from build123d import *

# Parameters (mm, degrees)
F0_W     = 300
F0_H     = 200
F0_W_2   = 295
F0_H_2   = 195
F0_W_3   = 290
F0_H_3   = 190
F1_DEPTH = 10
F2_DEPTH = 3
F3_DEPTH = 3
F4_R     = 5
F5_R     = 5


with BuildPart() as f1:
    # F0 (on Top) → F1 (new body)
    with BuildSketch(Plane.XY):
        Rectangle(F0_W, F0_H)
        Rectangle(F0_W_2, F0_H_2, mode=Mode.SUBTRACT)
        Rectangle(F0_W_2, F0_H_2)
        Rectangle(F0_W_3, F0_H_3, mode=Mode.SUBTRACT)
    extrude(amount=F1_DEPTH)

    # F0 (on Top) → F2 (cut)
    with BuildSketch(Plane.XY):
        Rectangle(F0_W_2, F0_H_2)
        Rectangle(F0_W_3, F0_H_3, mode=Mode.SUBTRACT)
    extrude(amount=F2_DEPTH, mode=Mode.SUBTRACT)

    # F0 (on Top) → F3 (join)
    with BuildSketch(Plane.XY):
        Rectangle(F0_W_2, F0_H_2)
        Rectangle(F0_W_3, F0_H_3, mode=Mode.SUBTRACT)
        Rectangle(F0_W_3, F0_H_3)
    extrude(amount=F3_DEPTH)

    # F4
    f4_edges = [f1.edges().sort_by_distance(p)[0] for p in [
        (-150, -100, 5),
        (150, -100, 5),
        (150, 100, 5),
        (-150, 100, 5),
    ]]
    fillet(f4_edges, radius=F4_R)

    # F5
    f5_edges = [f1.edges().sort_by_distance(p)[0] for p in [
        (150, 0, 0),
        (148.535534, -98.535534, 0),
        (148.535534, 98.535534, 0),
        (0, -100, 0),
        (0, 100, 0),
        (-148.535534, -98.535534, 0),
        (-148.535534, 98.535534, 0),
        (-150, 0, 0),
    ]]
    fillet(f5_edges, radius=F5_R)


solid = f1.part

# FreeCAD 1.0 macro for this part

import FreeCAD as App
import Part
import Sketcher
Q = App.Units.Quantity


def edges_at(feature, points):
    """Names of the edges that pass closest to the given points."""
    edges = feature.Shape.Edges
    near = lambda p: min(range(len(edges)), key=lambda i: edges[i].distToShape(Part.Vertex(*p))[0])
    return sorted({f"Edge{near(p) + 1}" for p in points})

doc = App.newDocument("Part")
body = doc.addObject("PartDesign::Body", "Body")

# Sketch on XY plane
sketch1 = body.newObject("Sketcher::SketchObject", "Sketch")
sketch1.AttachmentSupport = (doc.getObject("XY_Plane"), [""])
sketch1.MapMode = "FlatFace"
sketch1.addGeometry([
    Part.LineSegment(App.Vector(-150, 100, 0), App.Vector(-150, -100, 0)),  # 0
    Part.LineSegment(App.Vector(-150, -100, 0), App.Vector(150, -100, 0)),  # 1
    Part.LineSegment(App.Vector(150, -100, 0), App.Vector(150, 100, 0)),  # 2
    Part.LineSegment(App.Vector(150, 100, 0), App.Vector(-150, 100, 0)),  # 3
    Part.LineSegment(App.Vector(145, -95, 0), App.Vector(-145, -95, 0)),  # 4
    Part.LineSegment(App.Vector(-145, -95, 0), App.Vector(-145, 95, 0)),  # 5
    Part.LineSegment(App.Vector(-145, 95, 0), App.Vector(145, 95, 0)),  # 6
    Part.LineSegment(App.Vector(145, 95, 0), App.Vector(145, -95, 0)),  # 7
], False)
sketch1.addConstraint([
    Sketcher.Constraint("Coincident", 0, 2, 1, 1),
    Sketcher.Constraint("Coincident", 1, 2, 2, 1),
    Sketcher.Constraint("Coincident", 2, 2, 3, 1),
    Sketcher.Constraint("Coincident", 3, 2, 0, 1),
    Sketcher.Constraint("Coincident", 4, 2, 5, 1),
    Sketcher.Constraint("Coincident", 5, 2, 6, 1),
    Sketcher.Constraint("Coincident", 6, 2, 7, 1),
    Sketcher.Constraint("Coincident", 7, 2, 4, 1),
    Sketcher.Constraint("Vertical", 0),
    Sketcher.Constraint("Horizontal", 1),
    Sketcher.Constraint("Vertical", 2),
    Sketcher.Constraint("Horizontal", 3),
    Sketcher.Constraint("Horizontal", 4),
    Sketcher.Constraint("Vertical", 5),
    Sketcher.Constraint("Horizontal", 6),
    Sketcher.Constraint("Vertical", 7),
    Sketcher.Constraint("Symmetric", 0, 2, 2, 2, -1, 1),
    Sketcher.Constraint("Symmetric", 4, 2, 6, 2, -1, 1),
    Sketcher.Constraint("DistanceX", 1, 1, 1, 2, Q("300 mm")),
    Sketcher.Constraint("DistanceX", 4, 2, 4, 1, Q("290 mm")),
    Sketcher.Constraint("DistanceY", 0, 2, 0, 1, Q("200 mm")),
    Sketcher.Constraint("DistanceY", 5, 1, 5, 2, Q("190 mm")),
])
pad1 = body.newObject("PartDesign::Pad", "Pad")
pad1.Profile = sketch1
pad1.Length = 10

# Sketch on XY plane
sketch2 = body.newObject("Sketcher::SketchObject", "Sketch001")
sketch2.AttachmentSupport = (doc.getObject("XY_Plane"), [""])
sketch2.MapMode = "FlatFace"
sketch2.addGeometry([
    Part.LineSegment(App.Vector(-147.5, 97.5, 0), App.Vector(-147.5, -97.5, 0)),  # 0
    Part.LineSegment(App.Vector(-147.5, -97.5, 0), App.Vector(147.5, -97.5, 0)),  # 1
    Part.LineSegment(App.Vector(147.5, -97.5, 0), App.Vector(147.5, 97.5, 0)),  # 2
    Part.LineSegment(App.Vector(147.5, 97.5, 0), App.Vector(-147.5, 97.5, 0)),  # 3
    Part.LineSegment(App.Vector(145, -95, 0), App.Vector(-145, -95, 0)),  # 4
    Part.LineSegment(App.Vector(-145, -95, 0), App.Vector(-145, 95, 0)),  # 5
    Part.LineSegment(App.Vector(-145, 95, 0), App.Vector(145, 95, 0)),  # 6
    Part.LineSegment(App.Vector(145, 95, 0), App.Vector(145, -95, 0)),  # 7
], False)
sketch2.addConstraint([
    Sketcher.Constraint("Coincident", 0, 2, 1, 1),
    Sketcher.Constraint("Coincident", 1, 2, 2, 1),
    Sketcher.Constraint("Coincident", 2, 2, 3, 1),
    Sketcher.Constraint("Coincident", 3, 2, 0, 1),
    Sketcher.Constraint("Coincident", 4, 2, 5, 1),
    Sketcher.Constraint("Coincident", 5, 2, 6, 1),
    Sketcher.Constraint("Coincident", 6, 2, 7, 1),
    Sketcher.Constraint("Coincident", 7, 2, 4, 1),
    Sketcher.Constraint("Vertical", 0),
    Sketcher.Constraint("Horizontal", 1),
    Sketcher.Constraint("Vertical", 2),
    Sketcher.Constraint("Horizontal", 3),
    Sketcher.Constraint("Horizontal", 4),
    Sketcher.Constraint("Vertical", 5),
    Sketcher.Constraint("Horizontal", 6),
    Sketcher.Constraint("Vertical", 7),
    Sketcher.Constraint("Symmetric", 0, 2, 2, 2, -1, 1),
    Sketcher.Constraint("Symmetric", 4, 2, 6, 2, -1, 1),
    Sketcher.Constraint("DistanceX", 1, 1, 1, 2, Q("295 mm")),
    Sketcher.Constraint("DistanceX", 4, 2, 4, 1, Q("290 mm")),
    Sketcher.Constraint("DistanceY", 0, 2, 0, 1, Q("195 mm")),
    Sketcher.Constraint("DistanceY", 5, 1, 5, 2, Q("190 mm")),
])
pocket1 = body.newObject("PartDesign::Pocket", "Pocket")
pocket1.Profile = sketch2
pocket1.Length = 3
pocket1.Reversed = True

# Sketch on XY plane
sketch3 = body.newObject("Sketcher::SketchObject", "Sketch002")
sketch3.AttachmentSupport = (doc.getObject("XY_Plane"), [""])
sketch3.MapMode = "FlatFace"
sketch3.addGeometry([
    Part.LineSegment(App.Vector(-147.5, 97.5, 0), App.Vector(-147.5, -97.5, 0)),
    Part.LineSegment(App.Vector(-147.5, -97.5, 0), App.Vector(147.5, -97.5, 0)),
    Part.LineSegment(App.Vector(147.5, -97.5, 0), App.Vector(147.5, 97.5, 0)),
    Part.LineSegment(App.Vector(147.5, 97.5, 0), App.Vector(-147.5, 97.5, 0)),
], False)
sketch3.addConstraint([
    Sketcher.Constraint("Coincident", 0, 2, 1, 1),
    Sketcher.Constraint("Coincident", 1, 2, 2, 1),
    Sketcher.Constraint("Coincident", 2, 2, 3, 1),
    Sketcher.Constraint("Coincident", 3, 2, 0, 1),
    Sketcher.Constraint("Vertical", 0),
    Sketcher.Constraint("Horizontal", 1),
    Sketcher.Constraint("Vertical", 2),
    Sketcher.Constraint("Horizontal", 3),
    Sketcher.Constraint("Symmetric", 0, 2, 2, 2, -1, 1),
    Sketcher.Constraint("DistanceX", 1, 1, 1, 2, Q("295 mm")),
    Sketcher.Constraint("DistanceY", 0, 2, 0, 1, Q("195 mm")),
])
pad2 = body.newObject("PartDesign::Pad", "Pad001")
pad2.Profile = sketch3
pad2.Length = 3
doc.recompute()

fillet = body.newObject("PartDesign::Fillet", "Fillet")
fillet.Base = (pad2, edges_at(pad2, [
    (-150, -100, 5),
    (150, -100, 5),
    (150, 100, 5),
    (-150, 100, 5),
]))
fillet.Radius = 5
doc.recompute()

fillet2 = body.newObject("PartDesign::Fillet", "Fillet001")
fillet2.Base = (fillet, edges_at(fillet, [
    (150, 0, 0),
    (148.536, -98.536, 0),
    (148.536, 98.536, 0),
    (0, -100, 0),
    (0, 100, 0),
    (-148.536, -98.536, 0),
    (-148.536, 98.536, 0),
    (-150, 0, 0),
]))
fillet2.Radius = 5

doc.recompute()
